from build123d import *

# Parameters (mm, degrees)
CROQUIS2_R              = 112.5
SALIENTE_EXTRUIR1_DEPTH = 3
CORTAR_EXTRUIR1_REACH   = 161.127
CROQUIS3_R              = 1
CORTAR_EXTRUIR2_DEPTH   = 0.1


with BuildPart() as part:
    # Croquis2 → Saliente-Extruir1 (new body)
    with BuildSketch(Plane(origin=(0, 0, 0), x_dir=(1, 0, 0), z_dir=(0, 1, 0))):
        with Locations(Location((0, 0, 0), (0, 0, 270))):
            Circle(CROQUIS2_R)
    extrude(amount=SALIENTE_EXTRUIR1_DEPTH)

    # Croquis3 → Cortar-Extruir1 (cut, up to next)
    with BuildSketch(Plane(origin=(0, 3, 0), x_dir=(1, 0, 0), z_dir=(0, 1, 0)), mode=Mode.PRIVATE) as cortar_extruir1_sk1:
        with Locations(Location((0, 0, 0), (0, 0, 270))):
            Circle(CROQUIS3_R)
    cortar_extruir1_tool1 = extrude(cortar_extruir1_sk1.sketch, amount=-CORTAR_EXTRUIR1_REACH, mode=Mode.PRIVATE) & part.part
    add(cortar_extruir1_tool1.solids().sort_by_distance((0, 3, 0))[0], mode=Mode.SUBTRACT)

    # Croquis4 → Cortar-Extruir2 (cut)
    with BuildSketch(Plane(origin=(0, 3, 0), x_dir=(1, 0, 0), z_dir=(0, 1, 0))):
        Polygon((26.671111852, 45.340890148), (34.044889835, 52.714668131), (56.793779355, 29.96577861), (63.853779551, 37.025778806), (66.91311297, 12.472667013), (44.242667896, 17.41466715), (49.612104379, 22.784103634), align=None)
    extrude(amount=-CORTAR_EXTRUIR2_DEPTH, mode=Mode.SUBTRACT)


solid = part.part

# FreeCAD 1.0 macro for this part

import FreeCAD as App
import Part
import Sketcher
Q = App.Units.Quantity

doc = App.newDocument("Part")
params = doc.addObject("Spreadsheet::Sheet", "Params")
for row, (alias, value) in enumerate([
    ("sketch1_diameter", "225 mm"),
    ("pad1_length", "3 mm"),
    ("sketch2_diameter", "2 mm"),
    ("pocket2_length", "0.1 mm"),
], start=1):
    params.set(f"A{row}", alias)
    params.set(f"B{row}", "=" + value)
    params.setAlias(f"B{row}", alias)

body = doc.addObject("PartDesign::Body", "Body")

sketch1 = body.newObject("Sketcher::SketchObject", "Sketch")
sketch1.AttachmentSupport = (doc.getObject("XZ_Plane"), [""])
sketch1.MapMode = "FlatFace"
sketch1.addGeometry(Part.Circle(App.Vector(0, 0, 0), App.Vector(0, 0, 1), 112.5), False)
sketch1.addConstraint([
    Sketcher.Constraint("Coincident", 0, 3, -1, 1),
    Sketcher.Constraint("Diameter", 0, Q("225 mm")),
])
sketch1.setExpression("Constraints[1]", "Params.sketch1_diameter")
pad1 = body.newObject("PartDesign::Pad", "Pad")
pad1.Profile = sketch1
pad1.setExpression("Length", "Params.pad1_length")
pad1.Reversed = True

sketch2 = body.newObject("Sketcher::SketchObject", "Sketch001")
sketch2.AttachmentSupport = (doc.getObject("XZ_Plane"), [""])
sketch2.MapMode = "FlatFace"
sketch2.AttachmentOffset = App.Placement(App.Vector(0, 0, -3), App.Rotation())
sketch2.addGeometry(Part.Circle(App.Vector(0, 0, 0), App.Vector(0, 0, 1), 1), False)
sketch2.addConstraint([
    Sketcher.Constraint("Coincident", 0, 3, -1, 1),
    Sketcher.Constraint("Diameter", 0, Q("2 mm")),
])
sketch2.setExpression("Constraints[1]", "Params.sketch2_diameter")
pocket1 = body.newObject("PartDesign::Pocket", "Pocket")
pocket1.Profile = sketch2
pocket1.Type = "UpToFirst"
pocket1.Reversed = True

sketch3 = body.newObject("Sketcher::SketchObject", "Sketch002")
sketch3.AttachmentSupport = (doc.getObject("XZ_Plane"), [""])
sketch3.MapMode = "FlatFace"
sketch3.AttachmentOffset = App.Placement(App.Vector(0, 0, -3), App.Rotation())
sketch3.addGeometry([
    Part.LineSegment(App.Vector(34.04489, -52.714668, 0), App.Vector(26.671112, -45.34089, 0)),
    Part.LineSegment(App.Vector(26.671112, -45.34089, 0), App.Vector(49.612104, -22.784104, 0)),
    Part.LineSegment(App.Vector(49.612104, -22.784104, 0), App.Vector(44.242668, -17.414667, 0)),
    Part.LineSegment(App.Vector(44.242668, -17.414667, 0), App.Vector(66.913113, -12.472667, 0)),
    Part.LineSegment(App.Vector(66.913113, -12.472667, 0), App.Vector(63.85378, -37.025779, 0)),
    Part.LineSegment(App.Vector(63.85378, -37.025779, 0), App.Vector(56.793779, -29.965779, 0)),
    Part.LineSegment(App.Vector(56.793779, -29.965779, 0), App.Vector(34.04489, -52.714668, 0)),
], False)
sketch3.addConstraint([
    Sketcher.Constraint("Coincident", 0, 2, 1, 1),
    Sketcher.Constraint("Coincident", 1, 2, 2, 1),
    Sketcher.Constraint("Coincident", 2, 2, 3, 1),
    Sketcher.Constraint("Coincident", 3, 2, 4, 1),
    Sketcher.Constraint("Coincident", 4, 2, 5, 1),
    Sketcher.Constraint("Coincident", 5, 2, 6, 1),
    Sketcher.Constraint("Coincident", 6, 2, 0, 1),
    Sketcher.Constraint("Parallel", 0, 2),
    Sketcher.Constraint("Parallel", 2, 5),
    Sketcher.Constraint("Perpendicular", 5, 6),
    Sketcher.Constraint("Angle", 0, Q("135 deg")),
    Sketcher.Constraint("DistanceY", 6, 2, 2, 2, Q("35.300001 mm")),
    Sketcher.Constraint("DistanceX", 5, 2, 4, 2, Q("7.06 mm")),
    Sketcher.Constraint("DistanceY", 2, 2, 3, 2, Q("4.942 mm")),
    Sketcher.Constraint("DistanceX", 0, 2, 3, 2, Q("40.242001 mm")),
    Sketcher.Constraint("Distance", 2, Q("7.59353 mm")),
    Sketcher.Constraint("Distance", 6, Q("32.171788 mm")),
    Sketcher.Constraint("DistanceX", -1, 1, 0, 2, Q("26.671112 mm")),
    Sketcher.Constraint("DistanceY", 0, 2, -1, 1, Q("45.34089 mm")),
    Sketcher.Constraint("DistanceX", -1, 1, 4, 2, Q("63.85378 mm")),
    Sketcher.Constraint("DistanceX", 1, 2, 3, 2, Q("17.301009 mm")),
])
pocket2 = body.newObject("PartDesign::Pocket", "Pocket001")
pocket2.Profile = sketch3
pocket2.setExpression("Length", "Params.pocket2_length")
pocket2.Reversed = True

doc.recompute()
